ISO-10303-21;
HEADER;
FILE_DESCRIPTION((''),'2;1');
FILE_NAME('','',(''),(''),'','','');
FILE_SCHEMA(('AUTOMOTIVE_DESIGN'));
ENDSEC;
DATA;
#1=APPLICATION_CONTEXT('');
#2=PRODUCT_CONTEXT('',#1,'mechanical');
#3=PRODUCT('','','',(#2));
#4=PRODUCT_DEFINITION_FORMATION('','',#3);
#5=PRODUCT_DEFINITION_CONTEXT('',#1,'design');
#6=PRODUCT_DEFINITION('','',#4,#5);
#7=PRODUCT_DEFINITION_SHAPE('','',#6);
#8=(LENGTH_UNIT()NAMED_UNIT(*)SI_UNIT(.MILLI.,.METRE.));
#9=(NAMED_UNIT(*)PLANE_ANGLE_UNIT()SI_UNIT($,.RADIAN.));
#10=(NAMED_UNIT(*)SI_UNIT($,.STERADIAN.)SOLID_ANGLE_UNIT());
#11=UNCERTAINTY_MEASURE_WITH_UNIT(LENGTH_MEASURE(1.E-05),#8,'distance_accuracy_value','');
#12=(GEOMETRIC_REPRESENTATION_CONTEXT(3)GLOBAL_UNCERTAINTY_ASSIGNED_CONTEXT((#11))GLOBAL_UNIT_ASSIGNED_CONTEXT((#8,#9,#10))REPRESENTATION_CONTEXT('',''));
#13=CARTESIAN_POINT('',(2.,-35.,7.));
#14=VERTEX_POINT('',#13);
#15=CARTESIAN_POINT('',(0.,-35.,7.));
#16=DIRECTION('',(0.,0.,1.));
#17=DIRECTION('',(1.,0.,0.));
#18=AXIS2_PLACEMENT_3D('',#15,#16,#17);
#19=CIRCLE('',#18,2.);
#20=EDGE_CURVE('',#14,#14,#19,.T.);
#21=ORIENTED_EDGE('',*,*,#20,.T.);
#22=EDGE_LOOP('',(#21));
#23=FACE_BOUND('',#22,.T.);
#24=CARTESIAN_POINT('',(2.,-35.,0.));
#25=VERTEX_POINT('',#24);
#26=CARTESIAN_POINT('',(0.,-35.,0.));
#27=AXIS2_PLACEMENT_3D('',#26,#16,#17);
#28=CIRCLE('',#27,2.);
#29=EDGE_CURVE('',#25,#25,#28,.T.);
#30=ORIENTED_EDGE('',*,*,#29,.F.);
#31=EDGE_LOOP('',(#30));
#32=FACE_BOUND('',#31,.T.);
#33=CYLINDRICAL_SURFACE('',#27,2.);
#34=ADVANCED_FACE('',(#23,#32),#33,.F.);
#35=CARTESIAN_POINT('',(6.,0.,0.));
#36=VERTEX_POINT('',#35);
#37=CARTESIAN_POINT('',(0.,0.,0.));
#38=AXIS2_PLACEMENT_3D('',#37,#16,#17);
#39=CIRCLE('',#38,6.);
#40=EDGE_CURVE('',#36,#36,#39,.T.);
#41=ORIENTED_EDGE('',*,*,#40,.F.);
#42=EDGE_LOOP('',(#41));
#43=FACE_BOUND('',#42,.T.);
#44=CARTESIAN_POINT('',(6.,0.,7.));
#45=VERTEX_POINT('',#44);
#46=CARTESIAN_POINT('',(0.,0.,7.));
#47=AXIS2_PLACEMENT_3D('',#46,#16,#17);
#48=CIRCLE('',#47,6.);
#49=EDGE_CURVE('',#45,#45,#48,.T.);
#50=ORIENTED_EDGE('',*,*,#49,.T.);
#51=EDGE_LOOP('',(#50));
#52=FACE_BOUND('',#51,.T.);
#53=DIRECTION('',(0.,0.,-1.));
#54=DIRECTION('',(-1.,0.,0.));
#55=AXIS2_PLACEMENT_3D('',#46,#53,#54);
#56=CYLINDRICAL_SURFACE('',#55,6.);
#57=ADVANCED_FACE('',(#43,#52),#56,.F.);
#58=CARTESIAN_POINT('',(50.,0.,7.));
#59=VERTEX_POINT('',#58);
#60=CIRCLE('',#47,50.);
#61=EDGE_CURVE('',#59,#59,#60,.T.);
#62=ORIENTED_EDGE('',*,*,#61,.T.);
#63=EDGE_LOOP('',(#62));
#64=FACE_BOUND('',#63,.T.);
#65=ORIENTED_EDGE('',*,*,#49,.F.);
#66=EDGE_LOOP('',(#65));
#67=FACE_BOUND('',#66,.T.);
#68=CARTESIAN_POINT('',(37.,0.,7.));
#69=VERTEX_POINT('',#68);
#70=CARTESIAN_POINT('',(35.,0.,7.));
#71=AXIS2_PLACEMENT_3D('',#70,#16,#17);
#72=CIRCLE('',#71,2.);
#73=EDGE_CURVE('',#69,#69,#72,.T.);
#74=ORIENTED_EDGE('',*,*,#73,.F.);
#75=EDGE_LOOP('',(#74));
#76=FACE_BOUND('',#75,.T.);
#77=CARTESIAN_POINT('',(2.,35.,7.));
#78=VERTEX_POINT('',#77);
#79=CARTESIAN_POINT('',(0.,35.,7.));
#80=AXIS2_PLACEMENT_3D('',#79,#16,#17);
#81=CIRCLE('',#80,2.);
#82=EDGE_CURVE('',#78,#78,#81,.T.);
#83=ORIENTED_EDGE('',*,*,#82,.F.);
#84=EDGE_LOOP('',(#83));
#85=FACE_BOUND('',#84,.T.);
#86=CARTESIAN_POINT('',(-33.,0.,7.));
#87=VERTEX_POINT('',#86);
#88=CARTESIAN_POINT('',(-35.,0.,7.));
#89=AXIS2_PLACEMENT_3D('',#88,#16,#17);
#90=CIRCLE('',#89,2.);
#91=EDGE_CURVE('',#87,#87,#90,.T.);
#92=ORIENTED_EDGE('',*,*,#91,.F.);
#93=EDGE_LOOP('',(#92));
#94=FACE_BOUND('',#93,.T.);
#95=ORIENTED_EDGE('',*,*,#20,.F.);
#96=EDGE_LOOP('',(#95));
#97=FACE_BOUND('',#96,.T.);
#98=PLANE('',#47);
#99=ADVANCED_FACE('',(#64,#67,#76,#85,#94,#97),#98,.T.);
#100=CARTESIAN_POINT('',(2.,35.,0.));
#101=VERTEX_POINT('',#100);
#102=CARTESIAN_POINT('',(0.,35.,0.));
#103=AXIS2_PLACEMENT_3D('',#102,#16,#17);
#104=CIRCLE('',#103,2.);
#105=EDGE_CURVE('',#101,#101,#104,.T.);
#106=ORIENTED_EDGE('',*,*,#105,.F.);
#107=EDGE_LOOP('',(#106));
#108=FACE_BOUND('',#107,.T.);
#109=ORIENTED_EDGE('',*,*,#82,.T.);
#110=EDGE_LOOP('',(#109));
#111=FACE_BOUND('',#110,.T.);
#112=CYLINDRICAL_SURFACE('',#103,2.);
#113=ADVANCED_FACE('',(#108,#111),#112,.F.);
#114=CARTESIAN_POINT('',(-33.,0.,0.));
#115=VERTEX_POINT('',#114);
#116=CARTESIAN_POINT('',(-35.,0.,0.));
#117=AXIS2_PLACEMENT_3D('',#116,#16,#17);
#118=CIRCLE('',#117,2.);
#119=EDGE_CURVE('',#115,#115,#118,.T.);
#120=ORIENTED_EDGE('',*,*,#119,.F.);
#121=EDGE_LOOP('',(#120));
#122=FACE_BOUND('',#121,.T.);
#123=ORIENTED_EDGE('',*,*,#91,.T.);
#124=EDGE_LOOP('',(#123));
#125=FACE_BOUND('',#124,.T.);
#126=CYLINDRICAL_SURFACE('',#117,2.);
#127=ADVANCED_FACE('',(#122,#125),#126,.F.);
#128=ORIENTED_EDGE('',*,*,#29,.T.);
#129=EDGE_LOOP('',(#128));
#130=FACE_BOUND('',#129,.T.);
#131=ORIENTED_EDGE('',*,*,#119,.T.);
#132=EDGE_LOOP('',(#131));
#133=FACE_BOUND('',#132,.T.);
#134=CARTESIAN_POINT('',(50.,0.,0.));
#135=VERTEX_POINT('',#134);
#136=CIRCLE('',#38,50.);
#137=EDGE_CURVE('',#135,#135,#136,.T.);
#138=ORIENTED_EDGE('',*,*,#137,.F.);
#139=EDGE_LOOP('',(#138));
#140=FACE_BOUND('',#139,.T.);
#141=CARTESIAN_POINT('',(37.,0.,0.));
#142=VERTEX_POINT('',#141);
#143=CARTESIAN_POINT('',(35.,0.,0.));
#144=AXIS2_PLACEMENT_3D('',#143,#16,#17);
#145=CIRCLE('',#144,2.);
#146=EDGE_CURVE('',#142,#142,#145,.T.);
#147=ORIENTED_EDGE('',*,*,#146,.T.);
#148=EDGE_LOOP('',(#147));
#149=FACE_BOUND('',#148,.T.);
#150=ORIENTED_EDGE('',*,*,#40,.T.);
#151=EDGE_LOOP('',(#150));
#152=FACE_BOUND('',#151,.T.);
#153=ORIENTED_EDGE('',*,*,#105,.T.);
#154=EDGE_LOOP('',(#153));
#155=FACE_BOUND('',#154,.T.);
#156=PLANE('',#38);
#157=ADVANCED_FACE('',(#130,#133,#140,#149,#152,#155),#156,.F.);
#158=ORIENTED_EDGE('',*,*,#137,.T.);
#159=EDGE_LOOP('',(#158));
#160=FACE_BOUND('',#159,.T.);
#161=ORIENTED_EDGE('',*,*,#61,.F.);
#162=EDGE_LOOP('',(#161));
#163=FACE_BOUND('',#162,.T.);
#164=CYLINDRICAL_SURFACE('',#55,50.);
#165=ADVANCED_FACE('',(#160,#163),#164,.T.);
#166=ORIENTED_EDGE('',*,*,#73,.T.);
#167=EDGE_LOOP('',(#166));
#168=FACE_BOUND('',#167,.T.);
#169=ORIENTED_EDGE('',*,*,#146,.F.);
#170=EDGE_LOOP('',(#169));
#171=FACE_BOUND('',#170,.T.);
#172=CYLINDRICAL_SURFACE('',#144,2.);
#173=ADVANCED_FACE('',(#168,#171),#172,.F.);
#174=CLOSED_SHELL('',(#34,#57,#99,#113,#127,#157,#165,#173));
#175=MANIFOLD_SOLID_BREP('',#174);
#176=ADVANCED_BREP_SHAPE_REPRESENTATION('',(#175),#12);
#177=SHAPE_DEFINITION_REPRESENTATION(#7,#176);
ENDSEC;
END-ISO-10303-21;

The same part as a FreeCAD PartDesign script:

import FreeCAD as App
import Part
import Sketcher
from FreeCAD import Vector

doc = App.newDocument("Part")
body = doc.addObject("PartDesign::Body", "Body")

# Sketch on XY plane
sketch1 = doc.addObject("Sketcher::SketchObject", "Sketch")
body.addObject(sketch1)
sketch1.AttachmentSupport = (doc.XY_Plane, [""])
sketch1.MapMode = "FlatFace"
sketch1.addGeometry([
    Part.Circle(Vector(0, 0, 0), Vector(0, 0, 1), 50),
    Part.Circle(Vector(0, 0, 0), Vector(0, 0, 1), 6),
], False)
sketch1.addConstraint([
    Sketcher.Constraint("Coincident", 0, 3, -1, 1),
    Sketcher.Constraint("Coincident", 1, 3, -1, 1),
    Sketcher.Constraint("Diameter", 0, 100.0),
    Sketcher.Constraint("Diameter", 1, 12.0),
])
pad1 = doc.addObject("PartDesign::Pad", "Pad")
body.addObject(pad1)
pad1.Profile = sketch1
pad1.Length = 7

# Sketch on XY plane
sketch2 = doc.addObject("Sketcher::SketchObject", "Sketch001")
body.addObject(sketch2)
sketch2.AttachmentSupport = (doc.XY_Plane, [""])
sketch2.MapMode = "FlatFace"
sketch2.AttachmentOffset = App.Placement(Vector(0, 0, 7), App.Rotation())
sketch2.addGeometry([
    Part.Circle(Vector(0, 35, 0), Vector(0, 0, 1), 2),
    Part.Circle(Vector(0, -35, 0), Vector(0, 0, 1), 2),
    Part.Circle(Vector(-35, 0, 0), Vector(0, 0, 1), 2),
    Part.Circle(Vector(35, 0, 0), Vector(0, 0, 1), 2),
], False)
sketch2.addConstraint([
    Sketcher.Constraint("Equal", 0, 1),
    Sketcher.Constraint("Equal", 1, 2),
    Sketcher.Constraint("Equal", 2, 3),
    Sketcher.Constraint("Symmetric", 0, 3, 1, 3, -1, 1),
    Sketcher.Constraint("Symmetric", 2, 3, 3, 3, -1, 1),
    Sketcher.Constraint("PointOnObject", 0, 3, -2),
    Sketcher.Constraint("PointOnObject", 2, 3, -1),
    Sketcher.Constraint("Diameter", 0, 4.0),
    Sketcher.Constraint("DistanceY", -1, 1, 0, 3, 35.0),
    Sketcher.Constraint("DistanceX", 2, 3, -1, 1, 35.0),
])
pocket1 = doc.addObject("PartDesign::Pocket", "Pocket")
body.addObject(pocket1)
pocket1.Profile = sketch2
pocket1.Type = "ThroughAll"

doc.recompute()
